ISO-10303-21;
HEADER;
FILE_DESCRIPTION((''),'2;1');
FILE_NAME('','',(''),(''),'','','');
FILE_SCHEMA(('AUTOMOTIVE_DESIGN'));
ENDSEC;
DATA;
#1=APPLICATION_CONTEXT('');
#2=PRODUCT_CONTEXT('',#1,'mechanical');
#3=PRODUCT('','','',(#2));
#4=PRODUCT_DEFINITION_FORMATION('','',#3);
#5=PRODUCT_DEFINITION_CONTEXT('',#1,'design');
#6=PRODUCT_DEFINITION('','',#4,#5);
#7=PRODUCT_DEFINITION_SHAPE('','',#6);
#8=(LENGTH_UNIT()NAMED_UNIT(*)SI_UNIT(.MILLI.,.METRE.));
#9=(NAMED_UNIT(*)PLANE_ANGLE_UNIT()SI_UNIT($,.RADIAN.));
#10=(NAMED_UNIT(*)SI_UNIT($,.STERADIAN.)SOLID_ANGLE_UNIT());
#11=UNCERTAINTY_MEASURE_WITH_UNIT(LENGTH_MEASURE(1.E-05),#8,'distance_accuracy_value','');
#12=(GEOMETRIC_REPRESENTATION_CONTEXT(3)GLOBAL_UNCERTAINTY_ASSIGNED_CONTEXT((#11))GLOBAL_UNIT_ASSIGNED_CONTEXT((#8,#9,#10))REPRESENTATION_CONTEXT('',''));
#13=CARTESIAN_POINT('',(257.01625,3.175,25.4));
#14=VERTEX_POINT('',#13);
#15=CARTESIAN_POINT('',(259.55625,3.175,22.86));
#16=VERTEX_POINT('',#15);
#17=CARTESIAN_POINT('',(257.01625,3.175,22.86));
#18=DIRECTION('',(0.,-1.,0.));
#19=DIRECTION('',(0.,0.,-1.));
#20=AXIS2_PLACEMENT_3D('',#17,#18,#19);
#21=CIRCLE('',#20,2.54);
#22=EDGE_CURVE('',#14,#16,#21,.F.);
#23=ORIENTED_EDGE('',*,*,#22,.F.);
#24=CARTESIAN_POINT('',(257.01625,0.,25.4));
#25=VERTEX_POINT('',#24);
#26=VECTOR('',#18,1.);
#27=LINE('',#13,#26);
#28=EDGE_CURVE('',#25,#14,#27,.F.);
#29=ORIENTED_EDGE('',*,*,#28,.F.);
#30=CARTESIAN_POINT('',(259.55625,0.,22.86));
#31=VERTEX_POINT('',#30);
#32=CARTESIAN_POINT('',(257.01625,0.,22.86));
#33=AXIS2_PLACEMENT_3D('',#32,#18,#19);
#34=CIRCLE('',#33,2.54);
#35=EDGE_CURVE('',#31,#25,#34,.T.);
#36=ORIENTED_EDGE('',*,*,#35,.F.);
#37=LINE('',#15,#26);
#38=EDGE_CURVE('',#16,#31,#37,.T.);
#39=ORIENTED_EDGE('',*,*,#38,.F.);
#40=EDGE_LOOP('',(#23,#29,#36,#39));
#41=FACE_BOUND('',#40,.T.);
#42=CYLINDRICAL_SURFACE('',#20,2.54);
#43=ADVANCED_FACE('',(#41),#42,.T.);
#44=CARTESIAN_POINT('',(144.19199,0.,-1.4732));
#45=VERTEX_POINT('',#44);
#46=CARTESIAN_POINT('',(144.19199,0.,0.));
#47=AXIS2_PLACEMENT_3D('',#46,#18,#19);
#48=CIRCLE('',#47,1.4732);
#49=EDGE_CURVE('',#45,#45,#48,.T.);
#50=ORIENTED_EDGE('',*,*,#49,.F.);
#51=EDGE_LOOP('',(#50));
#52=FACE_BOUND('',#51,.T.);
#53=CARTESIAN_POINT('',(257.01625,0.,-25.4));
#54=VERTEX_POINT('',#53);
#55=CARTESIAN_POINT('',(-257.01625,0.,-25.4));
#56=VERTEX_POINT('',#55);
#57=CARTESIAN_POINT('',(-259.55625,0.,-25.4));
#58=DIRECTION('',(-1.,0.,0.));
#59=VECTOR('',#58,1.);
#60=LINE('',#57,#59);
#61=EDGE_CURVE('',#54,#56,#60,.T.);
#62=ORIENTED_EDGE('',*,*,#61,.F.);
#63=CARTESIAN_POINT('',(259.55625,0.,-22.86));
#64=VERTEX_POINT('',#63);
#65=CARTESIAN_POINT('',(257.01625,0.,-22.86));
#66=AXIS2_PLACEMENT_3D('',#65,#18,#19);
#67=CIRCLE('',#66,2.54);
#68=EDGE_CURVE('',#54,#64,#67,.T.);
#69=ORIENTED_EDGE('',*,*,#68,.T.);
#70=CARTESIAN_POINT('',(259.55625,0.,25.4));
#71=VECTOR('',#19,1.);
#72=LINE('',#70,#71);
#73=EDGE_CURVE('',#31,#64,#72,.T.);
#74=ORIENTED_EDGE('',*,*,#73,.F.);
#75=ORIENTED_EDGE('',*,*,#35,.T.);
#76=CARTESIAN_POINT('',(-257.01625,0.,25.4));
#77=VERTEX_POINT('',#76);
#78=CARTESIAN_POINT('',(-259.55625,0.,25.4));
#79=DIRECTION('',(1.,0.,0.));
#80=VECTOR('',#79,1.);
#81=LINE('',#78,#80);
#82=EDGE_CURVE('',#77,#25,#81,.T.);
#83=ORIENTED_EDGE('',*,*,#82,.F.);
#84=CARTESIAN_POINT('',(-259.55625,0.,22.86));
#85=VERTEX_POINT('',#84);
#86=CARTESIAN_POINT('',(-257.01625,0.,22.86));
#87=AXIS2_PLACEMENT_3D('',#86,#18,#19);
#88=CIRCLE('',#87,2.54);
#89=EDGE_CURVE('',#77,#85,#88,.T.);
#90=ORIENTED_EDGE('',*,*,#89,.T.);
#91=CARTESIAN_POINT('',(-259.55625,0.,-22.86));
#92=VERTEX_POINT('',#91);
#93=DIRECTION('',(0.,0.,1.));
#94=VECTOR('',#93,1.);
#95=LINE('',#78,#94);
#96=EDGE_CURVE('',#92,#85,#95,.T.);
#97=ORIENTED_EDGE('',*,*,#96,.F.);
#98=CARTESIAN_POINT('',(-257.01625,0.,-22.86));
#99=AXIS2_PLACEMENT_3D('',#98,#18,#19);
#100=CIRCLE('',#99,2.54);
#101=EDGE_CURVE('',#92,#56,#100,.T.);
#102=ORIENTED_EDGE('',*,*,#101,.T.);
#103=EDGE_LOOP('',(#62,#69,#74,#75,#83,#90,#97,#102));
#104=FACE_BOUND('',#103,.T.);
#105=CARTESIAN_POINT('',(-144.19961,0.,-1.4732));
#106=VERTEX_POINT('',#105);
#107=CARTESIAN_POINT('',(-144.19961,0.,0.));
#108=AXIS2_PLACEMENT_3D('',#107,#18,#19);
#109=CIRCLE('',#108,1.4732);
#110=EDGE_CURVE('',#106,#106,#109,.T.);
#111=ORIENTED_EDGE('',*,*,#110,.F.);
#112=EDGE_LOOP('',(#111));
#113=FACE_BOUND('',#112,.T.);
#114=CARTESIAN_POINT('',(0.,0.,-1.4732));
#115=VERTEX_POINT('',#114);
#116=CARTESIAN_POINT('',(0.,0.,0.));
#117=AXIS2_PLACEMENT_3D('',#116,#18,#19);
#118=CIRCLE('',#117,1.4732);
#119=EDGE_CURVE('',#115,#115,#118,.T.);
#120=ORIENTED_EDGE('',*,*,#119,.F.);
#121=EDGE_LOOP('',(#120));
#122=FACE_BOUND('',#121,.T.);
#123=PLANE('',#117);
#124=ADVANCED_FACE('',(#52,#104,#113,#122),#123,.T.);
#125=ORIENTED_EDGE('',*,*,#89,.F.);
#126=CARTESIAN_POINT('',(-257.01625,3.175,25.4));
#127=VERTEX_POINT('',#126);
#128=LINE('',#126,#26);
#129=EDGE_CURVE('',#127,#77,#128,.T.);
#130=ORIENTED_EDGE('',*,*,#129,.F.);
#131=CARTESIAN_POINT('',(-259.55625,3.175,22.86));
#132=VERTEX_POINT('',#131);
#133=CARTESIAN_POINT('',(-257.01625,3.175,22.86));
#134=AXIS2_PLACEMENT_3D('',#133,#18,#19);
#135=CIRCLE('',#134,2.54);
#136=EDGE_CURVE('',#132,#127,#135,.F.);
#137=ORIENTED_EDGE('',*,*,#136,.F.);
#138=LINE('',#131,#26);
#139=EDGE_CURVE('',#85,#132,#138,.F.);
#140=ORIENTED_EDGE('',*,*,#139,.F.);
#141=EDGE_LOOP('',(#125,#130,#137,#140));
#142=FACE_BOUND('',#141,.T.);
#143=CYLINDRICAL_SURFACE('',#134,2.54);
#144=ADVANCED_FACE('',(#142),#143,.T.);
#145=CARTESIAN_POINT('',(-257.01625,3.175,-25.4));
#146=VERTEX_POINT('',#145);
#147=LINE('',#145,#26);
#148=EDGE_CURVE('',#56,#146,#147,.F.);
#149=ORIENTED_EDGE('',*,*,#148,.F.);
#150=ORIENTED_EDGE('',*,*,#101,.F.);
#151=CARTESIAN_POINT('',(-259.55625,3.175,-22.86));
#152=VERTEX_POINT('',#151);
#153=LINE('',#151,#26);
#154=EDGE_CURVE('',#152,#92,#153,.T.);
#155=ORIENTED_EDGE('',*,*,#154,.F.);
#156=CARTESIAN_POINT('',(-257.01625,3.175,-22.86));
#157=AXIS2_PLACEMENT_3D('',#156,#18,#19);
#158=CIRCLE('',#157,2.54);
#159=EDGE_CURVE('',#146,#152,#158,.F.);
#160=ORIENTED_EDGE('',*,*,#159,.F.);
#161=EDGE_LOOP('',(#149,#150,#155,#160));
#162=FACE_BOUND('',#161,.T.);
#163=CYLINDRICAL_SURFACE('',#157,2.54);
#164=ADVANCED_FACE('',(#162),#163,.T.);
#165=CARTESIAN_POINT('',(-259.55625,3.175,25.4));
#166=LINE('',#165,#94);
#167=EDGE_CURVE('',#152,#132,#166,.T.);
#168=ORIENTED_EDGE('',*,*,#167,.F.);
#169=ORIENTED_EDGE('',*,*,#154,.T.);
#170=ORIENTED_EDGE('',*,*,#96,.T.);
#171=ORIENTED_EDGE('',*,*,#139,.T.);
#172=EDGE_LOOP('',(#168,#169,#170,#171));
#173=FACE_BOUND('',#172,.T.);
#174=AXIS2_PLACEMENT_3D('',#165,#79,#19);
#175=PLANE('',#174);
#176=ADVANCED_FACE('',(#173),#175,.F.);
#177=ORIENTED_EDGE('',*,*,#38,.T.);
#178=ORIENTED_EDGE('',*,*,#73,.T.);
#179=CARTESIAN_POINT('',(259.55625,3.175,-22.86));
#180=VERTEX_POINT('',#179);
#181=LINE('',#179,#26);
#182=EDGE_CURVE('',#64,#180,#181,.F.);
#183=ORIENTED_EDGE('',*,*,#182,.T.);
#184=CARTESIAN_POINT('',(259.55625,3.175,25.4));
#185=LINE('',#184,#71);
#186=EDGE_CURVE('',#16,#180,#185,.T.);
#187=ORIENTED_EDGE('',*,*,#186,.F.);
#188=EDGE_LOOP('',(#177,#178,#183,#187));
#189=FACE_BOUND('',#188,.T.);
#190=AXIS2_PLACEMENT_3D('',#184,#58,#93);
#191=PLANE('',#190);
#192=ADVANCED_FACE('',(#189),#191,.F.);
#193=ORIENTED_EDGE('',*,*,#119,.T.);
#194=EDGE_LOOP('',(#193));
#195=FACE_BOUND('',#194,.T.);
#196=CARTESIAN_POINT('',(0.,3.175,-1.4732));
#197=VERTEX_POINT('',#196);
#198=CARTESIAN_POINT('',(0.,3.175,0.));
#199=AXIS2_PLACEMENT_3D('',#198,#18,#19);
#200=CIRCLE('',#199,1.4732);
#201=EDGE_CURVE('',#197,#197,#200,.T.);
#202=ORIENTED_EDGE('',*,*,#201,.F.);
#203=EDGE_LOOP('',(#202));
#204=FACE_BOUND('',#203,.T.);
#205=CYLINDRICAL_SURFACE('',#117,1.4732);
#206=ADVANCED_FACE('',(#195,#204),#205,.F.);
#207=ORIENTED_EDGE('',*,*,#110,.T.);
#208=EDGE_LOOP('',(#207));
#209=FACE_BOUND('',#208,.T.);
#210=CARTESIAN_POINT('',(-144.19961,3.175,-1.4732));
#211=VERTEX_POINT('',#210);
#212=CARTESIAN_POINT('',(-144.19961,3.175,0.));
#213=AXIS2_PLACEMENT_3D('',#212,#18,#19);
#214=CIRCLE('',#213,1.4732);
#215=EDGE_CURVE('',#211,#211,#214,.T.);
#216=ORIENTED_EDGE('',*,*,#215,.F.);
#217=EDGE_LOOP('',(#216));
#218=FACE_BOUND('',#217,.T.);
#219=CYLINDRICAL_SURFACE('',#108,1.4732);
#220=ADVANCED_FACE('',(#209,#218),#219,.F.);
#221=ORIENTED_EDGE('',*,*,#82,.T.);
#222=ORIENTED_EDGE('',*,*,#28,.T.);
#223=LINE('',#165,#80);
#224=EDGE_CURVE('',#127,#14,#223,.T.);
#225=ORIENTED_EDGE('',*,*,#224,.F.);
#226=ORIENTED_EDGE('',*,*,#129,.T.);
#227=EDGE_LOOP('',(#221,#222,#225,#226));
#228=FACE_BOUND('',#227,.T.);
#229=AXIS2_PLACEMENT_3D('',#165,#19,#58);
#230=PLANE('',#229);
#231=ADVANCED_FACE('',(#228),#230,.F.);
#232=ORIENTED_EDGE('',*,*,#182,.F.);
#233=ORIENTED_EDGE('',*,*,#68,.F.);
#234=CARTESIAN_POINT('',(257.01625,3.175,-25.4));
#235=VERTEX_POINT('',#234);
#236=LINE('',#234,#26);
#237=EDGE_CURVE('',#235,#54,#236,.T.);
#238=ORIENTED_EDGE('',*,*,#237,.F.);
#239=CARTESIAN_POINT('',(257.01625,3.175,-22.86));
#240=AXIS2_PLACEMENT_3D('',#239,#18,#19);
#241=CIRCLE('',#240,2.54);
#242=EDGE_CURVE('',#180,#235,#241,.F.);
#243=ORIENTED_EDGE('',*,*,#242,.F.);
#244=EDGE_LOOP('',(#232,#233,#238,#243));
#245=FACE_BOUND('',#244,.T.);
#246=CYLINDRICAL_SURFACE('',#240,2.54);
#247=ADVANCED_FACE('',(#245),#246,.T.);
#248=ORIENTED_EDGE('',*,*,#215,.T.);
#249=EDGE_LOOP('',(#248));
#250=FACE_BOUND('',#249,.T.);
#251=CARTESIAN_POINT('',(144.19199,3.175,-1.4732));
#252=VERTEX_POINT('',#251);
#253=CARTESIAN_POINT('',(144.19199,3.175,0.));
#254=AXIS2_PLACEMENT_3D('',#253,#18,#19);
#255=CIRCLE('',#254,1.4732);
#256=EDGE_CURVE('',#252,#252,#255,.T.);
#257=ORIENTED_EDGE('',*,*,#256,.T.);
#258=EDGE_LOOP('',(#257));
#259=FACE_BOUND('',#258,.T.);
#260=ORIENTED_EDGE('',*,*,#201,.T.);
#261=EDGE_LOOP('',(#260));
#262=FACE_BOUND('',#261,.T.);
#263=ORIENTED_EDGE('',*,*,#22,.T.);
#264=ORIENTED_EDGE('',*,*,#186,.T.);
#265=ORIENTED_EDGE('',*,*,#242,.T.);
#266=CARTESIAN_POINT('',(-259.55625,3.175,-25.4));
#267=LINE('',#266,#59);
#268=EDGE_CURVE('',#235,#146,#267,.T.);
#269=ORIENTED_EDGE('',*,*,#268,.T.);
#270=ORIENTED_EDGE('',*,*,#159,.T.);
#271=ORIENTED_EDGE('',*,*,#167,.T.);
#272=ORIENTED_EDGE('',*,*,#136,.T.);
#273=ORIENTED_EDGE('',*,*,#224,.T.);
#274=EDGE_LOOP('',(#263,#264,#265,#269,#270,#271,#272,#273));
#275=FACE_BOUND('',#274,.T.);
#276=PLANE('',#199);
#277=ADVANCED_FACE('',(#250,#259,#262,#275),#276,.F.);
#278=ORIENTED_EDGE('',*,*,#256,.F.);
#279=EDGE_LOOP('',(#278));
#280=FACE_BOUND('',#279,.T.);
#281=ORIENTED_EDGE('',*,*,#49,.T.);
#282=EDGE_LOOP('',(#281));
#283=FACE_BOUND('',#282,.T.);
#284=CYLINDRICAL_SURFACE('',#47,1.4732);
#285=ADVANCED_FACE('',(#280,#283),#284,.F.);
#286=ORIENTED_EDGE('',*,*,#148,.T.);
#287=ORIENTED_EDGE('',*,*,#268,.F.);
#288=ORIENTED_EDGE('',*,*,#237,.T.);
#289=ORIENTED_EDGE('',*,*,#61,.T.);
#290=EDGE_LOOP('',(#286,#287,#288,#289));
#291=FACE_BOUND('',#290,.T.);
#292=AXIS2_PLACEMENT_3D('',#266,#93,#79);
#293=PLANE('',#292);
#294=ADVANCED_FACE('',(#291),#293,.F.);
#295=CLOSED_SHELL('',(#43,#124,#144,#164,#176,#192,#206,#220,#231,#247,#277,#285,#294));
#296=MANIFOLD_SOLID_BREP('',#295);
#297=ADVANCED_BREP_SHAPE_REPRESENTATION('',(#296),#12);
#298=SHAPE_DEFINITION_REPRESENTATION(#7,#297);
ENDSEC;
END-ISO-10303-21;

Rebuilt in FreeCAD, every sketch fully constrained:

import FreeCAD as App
import Part
import Sketcher
Q = App.Units.Quantity


def edges_at(feature, points):
    """Names of the edges that pass closest to the given points."""
    edges = feature.Shape.Edges
    near = lambda p: min(range(len(edges)), key=lambda i: edges[i].distToShape(Part.Vertex(*p))[0])
    return sorted({f"Edge{near(p) + 1}" for p in points})


def add_polygon(sketch, points):
    """Adds a closed chain of lines whose ends are joined by coincident constraints."""
    first, n = sketch.GeometryCount, len(points)
    for a, b in zip(points, points[1:] + points[:1]):
        sketch.addGeometry(Part.LineSegment(App.Vector(*a, 0), App.Vector(*b, 0)), False)
    for i in range(n):
        sketch.addConstraint(Sketcher.Constraint("Coincident", first + i, 2, first + (i + 1) % n, 1))

doc = App.newDocument("Part")
params = doc.addObject("Spreadsheet::Sheet", "Params")
for row, (alias, value) in enumerate([
    ("sketch1_height", "2 in"),
    ("sketch1_width", "20.4375 in"),
    ("pad1_length", "0.125 in"),
    ("fillet_radius", "0.1 in"),
    ("sketch2_diameter", "0.116 in"),
    ("hole_diameter", "0.116 in"),
], start=1):
    params.set(f"A{row}", alias)
    params.set(f"B{row}", "=" + value)
    params.setAlias(f"B{row}", alias)

body = doc.addObject("PartDesign::Body", "Body")

sketch1 = doc.addObject("Sketcher::SketchObject", "Sketch")
body.addObject(sketch1)
sketch1.AttachmentSupport = (doc.XZ_Plane, [""])
sketch1.MapMode = "FlatFace"
add_polygon(sketch1, [(-260, -25), (-260, 25), (260, 25), (260, -25)])
sketch1.addConstraint([
    Sketcher.Constraint("Vertical", 0),
    Sketcher.Constraint("Horizontal", 1),
    Sketcher.Constraint("Vertical", 2),
    Sketcher.Constraint("Horizontal", 3),
    Sketcher.Constraint("Symmetric", 0, 2, 2, 2, -1, 1),
    Sketcher.Constraint("DistanceY", 0, 1, 0, 2, Q("2 in")),
    Sketcher.Constraint("DistanceX", 1, 1, 1, 2, Q("20.4375 in")),
])
sketch1.setExpression("Constraints[9]", "Params.sketch1_height")
sketch1.setExpression("Constraints[10]", "Params.sketch1_width")
pad1 = doc.addObject("PartDesign::Pad", "Pad")
body.addObject(pad1)
pad1.Profile = sketch1
pad1.setExpression("Length", "Params.pad1_length")
pad1.Reversed = True
doc.recompute()

fillet = doc.addObject("PartDesign::Fillet", "Fillet")
body.addObject(fillet)
fillet.Base = (pad1, edges_at(pad1, [
    (259.556, 1.587, 25.4),
    (-259.556, 1.587, 25.4),
    (-259.556, 1.587, -25.4),
    (259.556, 1.587, -25.4),
]))
fillet.setExpression("Radius", "Params.fillet_radius")

sketch2 = doc.addObject("Sketcher::SketchObject", "Sketch001")
body.addObject(sketch2)
sketch2.AttachmentSupport = (doc.XZ_Plane, [""])
sketch2.MapMode = "FlatFace"
sketch2.addGeometry([
    Part.Circle(App.Vector(144.2, 0, 0), App.Vector(0, 0, 1), 1.5),
    Part.Circle(App.Vector(0, 0, 0), App.Vector(0, 0, 1), 1.5),
    Part.Circle(App.Vector(-144.2, 0, 0), App.Vector(0, 0, 1), 1.5),
], False)
sketch2.addConstraint([
    Sketcher.Constraint("Coincident", 1, 3, -1, 1),
    Sketcher.Constraint("Equal", 0, 1),
    Sketcher.Constraint("Equal", 1, 2),
    Sketcher.Constraint("PointOnObject", 0, 3, -1),
    Sketcher.Constraint("PointOnObject", 2, 3, -1),
    Sketcher.Constraint("Diameter", 0, Q("0.116 in")),
    Sketcher.Constraint("DistanceX", 2, 3, 0, 3, Q("11.354 in")),
    Sketcher.Constraint("DistanceX", -1, 1, 0, 3, 144.19199),
])
sketch2.setExpression("Constraints[5]", "Params.sketch2_diameter")
doc.recompute()
hole = doc.addObject("PartDesign::Hole", "Hole")
body.addObject(hole)
hole.Profile = sketch2
hole.ThreadType = "None"
hole.setExpression("Diameter", "Params.hole_diameter")
hole.DepthType = "ThroughAll"

doc.recompute()
